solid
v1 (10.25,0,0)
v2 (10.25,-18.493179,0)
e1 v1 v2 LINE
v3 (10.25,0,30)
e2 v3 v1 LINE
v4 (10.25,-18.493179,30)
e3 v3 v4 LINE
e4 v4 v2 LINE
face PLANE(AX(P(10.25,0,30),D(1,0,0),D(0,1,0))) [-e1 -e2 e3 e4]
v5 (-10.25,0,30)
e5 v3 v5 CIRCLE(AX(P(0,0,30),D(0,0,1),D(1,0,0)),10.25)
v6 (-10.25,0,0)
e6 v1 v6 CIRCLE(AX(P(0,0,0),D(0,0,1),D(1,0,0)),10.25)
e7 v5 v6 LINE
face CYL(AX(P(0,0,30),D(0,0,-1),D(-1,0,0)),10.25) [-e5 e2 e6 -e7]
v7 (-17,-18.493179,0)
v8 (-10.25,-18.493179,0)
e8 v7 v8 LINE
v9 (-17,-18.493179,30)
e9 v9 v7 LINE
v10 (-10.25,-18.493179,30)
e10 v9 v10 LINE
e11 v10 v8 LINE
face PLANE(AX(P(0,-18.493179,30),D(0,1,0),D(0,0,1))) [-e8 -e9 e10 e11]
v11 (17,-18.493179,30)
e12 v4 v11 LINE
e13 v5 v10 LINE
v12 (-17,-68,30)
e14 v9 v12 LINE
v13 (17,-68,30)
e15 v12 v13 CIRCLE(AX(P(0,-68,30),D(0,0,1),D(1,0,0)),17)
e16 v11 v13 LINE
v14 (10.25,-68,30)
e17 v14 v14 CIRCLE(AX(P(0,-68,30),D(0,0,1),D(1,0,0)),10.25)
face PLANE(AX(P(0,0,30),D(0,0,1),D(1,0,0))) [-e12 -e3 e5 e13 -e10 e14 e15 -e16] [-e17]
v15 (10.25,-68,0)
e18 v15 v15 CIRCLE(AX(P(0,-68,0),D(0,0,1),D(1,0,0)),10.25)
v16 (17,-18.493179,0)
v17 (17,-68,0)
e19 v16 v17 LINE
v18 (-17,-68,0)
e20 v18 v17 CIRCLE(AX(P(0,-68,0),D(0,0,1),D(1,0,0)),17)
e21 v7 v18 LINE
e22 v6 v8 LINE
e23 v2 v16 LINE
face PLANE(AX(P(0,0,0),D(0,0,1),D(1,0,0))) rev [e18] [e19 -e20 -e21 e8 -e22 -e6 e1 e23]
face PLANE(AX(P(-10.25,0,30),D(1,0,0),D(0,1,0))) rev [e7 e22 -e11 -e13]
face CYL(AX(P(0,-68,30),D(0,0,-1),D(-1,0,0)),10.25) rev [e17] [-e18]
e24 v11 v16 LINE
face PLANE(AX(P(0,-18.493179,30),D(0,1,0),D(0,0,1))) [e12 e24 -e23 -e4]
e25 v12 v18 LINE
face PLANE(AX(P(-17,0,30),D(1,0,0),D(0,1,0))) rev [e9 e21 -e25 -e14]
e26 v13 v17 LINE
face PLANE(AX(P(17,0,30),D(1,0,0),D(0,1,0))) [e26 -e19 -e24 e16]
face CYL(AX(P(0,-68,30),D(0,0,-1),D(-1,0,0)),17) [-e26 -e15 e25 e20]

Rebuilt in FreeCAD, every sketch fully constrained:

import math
import FreeCAD as App
import Part
import Sketcher
from FreeCAD import Vector
Q = App.Units.Quantity

doc = App.newDocument("Part")
body = doc.addObject("PartDesign::Body", "Body")

# Sketch on XY plane
sketch1 = doc.addObject("Sketcher::SketchObject", "Sketch")
body.addObject(sketch1)
sketch1.AttachmentSupport = (doc.XY_Plane, [""])
sketch1.MapMode = "FlatFace"
sketch1.addGeometry([
    Part.LineSegment(Vector(17, -68, 0), Vector(17, -18, 0)),  # 0
    Part.LineSegment(Vector(17, -18, 0), Vector(10, -18, 0)),  # 1
    Part.LineSegment(Vector(10, -18, 0), Vector(10, 0, 0)),  # 2
    Part.ArcOfCircle(Part.Circle(Vector(0, 0, 0), Vector(0, 0, 1), 10), math.radians(0), math.radians(180)),  # 3
    Part.LineSegment(Vector(-10, 0, 0), Vector(-10, -18, 0)),  # 4
    Part.LineSegment(Vector(-10, -18, 0), Vector(-17, -18, 0)),  # 5
    Part.LineSegment(Vector(-17, -18, 0), Vector(-17, -68, 0)),  # 6
    Part.ArcOfCircle(Part.Circle(Vector(0, -68, 0), Vector(0, 0, 1), 17), math.radians(180), math.radians(360)),  # 7
    Part.Circle(Vector(0, -68, 0), Vector(0, 0, 1), 10),  # 8
], False)
sketch1.addConstraint([
    Sketcher.Constraint("Coincident", 0, 2, 1, 1),
    Sketcher.Constraint("Coincident", 1, 2, 2, 1),
    Sketcher.Constraint("Tangent", 2, 2, 3, 1),
    Sketcher.Constraint("Tangent", 3, 2, 4, 1),
    Sketcher.Constraint("Coincident", 4, 2, 5, 1),
    Sketcher.Constraint("Coincident", 5, 2, 6, 1),
    Sketcher.Constraint("Tangent", 6, 2, 7, 1),
    Sketcher.Constraint("Tangent", 7, 2, 0, 1),
    Sketcher.Constraint("Vertical", 0),
    Sketcher.Constraint("Horizontal", 1),
    Sketcher.Constraint("Vertical", 2),
    Sketcher.Constraint("Vertical", 4),
    Sketcher.Constraint("Horizontal", 5),
    Sketcher.Constraint("Vertical", 6),
    Sketcher.Constraint("Coincident", 3, 3, -1, 1),
    Sketcher.Constraint("Coincident", 8, 3, 7, 3),
    Sketcher.Constraint("Equal", 3, 8),
    Sketcher.Constraint("Symmetric", 0, 2, 5, 2, -2),
    Sketcher.Constraint("Radius", 7, Q("17 mm")),
    Sketcher.Constraint("Diameter", 8, Q("20.5 mm")),
    Sketcher.Constraint("DistanceY", 7, 3, -1, 1, Q("68 mm")),
    Sketcher.Constraint("DistanceY", 0, 1, 0, 2, Q("49.506821 mm")),
])
pad1 = doc.addObject("PartDesign::Pad", "Pad")
body.addObject(pad1)
pad1.Profile = sketch1
pad1.Length = 30

doc.recompute()
